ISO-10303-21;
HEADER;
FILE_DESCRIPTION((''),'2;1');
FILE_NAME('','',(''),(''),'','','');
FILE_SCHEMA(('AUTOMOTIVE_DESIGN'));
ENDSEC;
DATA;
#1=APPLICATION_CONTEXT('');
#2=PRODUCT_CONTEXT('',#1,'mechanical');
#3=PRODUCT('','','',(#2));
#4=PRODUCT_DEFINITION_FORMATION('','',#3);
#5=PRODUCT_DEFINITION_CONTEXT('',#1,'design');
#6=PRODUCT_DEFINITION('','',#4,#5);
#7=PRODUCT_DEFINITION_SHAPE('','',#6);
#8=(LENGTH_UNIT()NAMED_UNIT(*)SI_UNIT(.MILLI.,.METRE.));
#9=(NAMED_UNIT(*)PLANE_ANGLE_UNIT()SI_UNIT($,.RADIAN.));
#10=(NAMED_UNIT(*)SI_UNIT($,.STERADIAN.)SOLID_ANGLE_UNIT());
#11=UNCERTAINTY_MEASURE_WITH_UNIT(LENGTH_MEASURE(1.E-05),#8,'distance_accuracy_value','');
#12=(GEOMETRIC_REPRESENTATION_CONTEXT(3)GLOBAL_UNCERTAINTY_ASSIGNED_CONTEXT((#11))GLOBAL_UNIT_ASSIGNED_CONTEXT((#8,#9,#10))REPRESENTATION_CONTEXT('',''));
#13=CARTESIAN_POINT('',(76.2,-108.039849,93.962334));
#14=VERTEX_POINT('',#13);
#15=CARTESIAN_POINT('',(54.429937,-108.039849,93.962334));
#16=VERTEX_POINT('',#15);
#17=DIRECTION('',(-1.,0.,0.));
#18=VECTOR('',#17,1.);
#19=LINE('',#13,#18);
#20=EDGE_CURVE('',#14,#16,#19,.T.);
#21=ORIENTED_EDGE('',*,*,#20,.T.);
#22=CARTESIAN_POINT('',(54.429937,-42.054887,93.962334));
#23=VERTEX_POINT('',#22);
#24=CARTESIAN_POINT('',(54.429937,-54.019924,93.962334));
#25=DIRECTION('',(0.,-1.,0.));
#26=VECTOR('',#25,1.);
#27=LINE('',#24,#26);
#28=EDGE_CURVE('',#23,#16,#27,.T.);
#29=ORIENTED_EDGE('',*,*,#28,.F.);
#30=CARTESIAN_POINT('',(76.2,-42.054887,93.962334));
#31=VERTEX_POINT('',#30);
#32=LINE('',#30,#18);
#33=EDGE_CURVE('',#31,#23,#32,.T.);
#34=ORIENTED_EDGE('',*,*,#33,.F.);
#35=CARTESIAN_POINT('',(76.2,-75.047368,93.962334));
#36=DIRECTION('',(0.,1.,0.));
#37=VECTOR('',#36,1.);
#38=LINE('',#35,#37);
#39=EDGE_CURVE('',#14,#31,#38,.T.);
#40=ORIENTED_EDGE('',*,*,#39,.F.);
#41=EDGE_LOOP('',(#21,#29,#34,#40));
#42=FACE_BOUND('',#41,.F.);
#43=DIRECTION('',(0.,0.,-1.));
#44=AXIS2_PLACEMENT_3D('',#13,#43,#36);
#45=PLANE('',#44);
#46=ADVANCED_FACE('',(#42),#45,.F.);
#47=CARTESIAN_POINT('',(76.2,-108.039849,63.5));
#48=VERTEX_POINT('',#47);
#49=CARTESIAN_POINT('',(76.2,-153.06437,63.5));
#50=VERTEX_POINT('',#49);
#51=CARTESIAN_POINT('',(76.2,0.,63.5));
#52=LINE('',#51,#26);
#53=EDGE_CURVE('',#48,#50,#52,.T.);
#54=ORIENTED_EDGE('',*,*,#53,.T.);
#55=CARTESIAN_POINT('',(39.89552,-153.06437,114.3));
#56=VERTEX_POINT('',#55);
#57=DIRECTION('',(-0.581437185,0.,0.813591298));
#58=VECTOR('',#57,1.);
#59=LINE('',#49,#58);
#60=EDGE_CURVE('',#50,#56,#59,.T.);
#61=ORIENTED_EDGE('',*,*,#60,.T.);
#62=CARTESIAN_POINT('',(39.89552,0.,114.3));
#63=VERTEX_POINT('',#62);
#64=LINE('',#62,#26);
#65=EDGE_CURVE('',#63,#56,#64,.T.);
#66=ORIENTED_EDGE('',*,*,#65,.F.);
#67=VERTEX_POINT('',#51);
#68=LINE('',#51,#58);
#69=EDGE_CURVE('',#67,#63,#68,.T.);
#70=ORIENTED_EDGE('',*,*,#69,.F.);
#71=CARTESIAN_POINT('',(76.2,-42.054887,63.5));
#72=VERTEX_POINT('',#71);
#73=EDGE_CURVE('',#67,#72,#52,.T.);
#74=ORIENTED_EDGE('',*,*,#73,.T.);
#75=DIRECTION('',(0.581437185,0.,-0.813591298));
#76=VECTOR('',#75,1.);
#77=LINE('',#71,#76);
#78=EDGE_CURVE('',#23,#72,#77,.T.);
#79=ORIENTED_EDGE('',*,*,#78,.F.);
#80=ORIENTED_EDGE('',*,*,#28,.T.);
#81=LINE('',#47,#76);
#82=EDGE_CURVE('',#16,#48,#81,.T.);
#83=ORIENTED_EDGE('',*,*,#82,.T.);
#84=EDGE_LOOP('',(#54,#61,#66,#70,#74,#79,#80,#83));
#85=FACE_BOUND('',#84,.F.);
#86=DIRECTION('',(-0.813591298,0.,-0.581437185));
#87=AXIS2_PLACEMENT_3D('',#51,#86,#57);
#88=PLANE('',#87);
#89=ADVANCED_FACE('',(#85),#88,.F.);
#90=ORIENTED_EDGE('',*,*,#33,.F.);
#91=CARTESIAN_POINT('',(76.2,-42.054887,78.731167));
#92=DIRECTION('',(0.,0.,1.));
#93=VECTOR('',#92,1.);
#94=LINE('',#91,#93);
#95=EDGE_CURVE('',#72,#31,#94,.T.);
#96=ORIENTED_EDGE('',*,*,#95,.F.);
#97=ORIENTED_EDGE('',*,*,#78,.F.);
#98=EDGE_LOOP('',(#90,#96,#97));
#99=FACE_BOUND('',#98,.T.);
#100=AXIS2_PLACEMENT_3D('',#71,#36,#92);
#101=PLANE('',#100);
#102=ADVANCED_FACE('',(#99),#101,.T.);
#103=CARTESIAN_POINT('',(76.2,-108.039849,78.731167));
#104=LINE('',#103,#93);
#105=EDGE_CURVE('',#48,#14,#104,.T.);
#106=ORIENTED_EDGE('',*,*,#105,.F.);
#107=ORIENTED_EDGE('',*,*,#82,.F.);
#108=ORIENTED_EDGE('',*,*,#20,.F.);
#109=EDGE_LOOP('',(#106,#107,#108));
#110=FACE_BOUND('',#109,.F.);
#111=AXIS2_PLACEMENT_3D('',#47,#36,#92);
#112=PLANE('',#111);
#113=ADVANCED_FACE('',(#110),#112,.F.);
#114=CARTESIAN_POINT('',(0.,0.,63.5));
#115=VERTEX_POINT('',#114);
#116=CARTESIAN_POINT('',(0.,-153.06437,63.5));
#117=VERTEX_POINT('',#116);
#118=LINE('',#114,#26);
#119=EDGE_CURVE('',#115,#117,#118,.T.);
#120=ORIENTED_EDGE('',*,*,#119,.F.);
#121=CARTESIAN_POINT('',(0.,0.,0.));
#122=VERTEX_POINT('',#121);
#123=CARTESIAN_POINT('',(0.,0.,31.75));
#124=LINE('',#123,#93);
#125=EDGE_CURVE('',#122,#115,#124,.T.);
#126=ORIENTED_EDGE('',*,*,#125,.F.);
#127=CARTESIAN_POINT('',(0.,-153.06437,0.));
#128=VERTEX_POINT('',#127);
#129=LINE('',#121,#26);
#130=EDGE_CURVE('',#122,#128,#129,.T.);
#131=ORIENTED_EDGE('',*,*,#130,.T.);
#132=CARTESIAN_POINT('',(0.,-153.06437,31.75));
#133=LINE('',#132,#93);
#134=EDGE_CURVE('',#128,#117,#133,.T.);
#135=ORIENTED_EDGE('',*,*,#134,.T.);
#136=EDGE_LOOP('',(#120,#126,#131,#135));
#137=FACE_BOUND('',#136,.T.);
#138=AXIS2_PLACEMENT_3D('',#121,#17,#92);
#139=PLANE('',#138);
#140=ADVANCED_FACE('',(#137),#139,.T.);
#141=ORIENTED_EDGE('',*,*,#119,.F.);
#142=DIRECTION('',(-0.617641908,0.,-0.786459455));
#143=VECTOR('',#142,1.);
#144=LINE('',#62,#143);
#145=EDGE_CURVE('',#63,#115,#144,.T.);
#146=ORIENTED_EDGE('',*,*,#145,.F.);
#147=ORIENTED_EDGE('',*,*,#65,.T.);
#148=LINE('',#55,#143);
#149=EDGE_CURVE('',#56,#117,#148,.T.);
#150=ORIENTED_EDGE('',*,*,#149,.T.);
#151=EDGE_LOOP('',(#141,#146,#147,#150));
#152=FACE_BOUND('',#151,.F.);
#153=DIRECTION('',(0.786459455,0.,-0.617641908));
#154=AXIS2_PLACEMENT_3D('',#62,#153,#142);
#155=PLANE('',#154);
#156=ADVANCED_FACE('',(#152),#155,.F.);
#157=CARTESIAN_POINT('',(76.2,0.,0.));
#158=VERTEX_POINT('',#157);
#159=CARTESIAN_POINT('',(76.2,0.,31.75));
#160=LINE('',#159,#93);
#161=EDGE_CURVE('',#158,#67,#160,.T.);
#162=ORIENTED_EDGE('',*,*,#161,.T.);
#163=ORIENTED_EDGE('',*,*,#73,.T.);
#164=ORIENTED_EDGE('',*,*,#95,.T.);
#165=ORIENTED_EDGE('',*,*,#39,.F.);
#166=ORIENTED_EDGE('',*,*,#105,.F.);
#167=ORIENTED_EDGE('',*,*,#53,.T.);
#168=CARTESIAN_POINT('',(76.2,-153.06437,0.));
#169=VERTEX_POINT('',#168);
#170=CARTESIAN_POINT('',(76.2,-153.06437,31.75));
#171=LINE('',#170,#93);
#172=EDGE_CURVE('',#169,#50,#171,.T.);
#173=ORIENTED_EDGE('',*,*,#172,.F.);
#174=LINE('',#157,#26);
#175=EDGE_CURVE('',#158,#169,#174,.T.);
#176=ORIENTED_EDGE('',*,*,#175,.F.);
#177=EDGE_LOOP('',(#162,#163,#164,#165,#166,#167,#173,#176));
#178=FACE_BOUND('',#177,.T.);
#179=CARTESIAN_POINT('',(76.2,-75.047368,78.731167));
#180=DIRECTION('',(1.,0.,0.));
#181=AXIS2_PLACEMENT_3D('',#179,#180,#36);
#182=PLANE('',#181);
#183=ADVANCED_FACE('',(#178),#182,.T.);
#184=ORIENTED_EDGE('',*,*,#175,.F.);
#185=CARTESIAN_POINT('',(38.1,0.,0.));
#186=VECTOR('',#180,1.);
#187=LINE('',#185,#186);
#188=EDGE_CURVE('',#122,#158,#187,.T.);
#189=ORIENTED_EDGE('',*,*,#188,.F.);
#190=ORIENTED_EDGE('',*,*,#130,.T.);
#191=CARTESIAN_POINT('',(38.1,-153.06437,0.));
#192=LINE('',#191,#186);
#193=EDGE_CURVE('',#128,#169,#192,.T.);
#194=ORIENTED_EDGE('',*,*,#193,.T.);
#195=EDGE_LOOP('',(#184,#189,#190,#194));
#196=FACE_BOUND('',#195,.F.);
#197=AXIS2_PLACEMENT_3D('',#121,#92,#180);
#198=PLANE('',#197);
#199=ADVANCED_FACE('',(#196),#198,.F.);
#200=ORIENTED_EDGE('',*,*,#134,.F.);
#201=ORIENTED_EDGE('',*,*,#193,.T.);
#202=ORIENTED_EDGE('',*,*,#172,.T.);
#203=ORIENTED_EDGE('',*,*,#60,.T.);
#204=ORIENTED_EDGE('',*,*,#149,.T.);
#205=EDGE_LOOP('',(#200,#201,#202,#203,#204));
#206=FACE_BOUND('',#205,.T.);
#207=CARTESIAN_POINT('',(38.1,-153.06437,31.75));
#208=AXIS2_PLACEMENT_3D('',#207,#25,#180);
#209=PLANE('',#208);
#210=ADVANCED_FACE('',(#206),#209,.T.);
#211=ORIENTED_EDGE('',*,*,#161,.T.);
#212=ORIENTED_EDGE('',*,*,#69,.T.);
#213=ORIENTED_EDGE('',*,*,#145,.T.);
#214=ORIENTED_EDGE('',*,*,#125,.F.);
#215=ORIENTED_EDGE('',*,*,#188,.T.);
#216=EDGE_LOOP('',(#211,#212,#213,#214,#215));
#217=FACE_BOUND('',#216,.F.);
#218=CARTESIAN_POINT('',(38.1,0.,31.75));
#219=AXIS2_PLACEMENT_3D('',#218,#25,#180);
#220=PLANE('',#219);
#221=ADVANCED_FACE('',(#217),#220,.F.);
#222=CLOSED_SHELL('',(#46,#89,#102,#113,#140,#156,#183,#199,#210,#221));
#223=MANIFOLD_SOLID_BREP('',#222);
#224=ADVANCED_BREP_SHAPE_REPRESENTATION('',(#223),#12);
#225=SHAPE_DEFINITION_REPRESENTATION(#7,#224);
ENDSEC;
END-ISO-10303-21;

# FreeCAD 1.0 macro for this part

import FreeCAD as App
import Part
import Sketcher
Q = App.Units.Quantity

doc = App.newDocument("Part")
params = doc.addObject("Spreadsheet::Sheet", "Params")
for row, (alias, value) in enumerate([
    ("sketch1_width", "3 in"),
    ("sketch1_height", "2.5 in"),
    ("pad1_length", "153.06437 mm"),
    ("pad2_length", "35.61956 mm"),
], start=1):
    params.set(f"A{row}", alias)
    params.set(f"B{row}", "=" + value)
    params.setAlias(f"B{row}", alias)

body = doc.addObject("PartDesign::Body", "Body")

sketch1 = body.newObject("Sketcher::SketchObject", "Sketch")
sketch1.AttachmentSupport = (doc.getObject("XZ_Plane"), [""])
sketch1.MapMode = "FlatFace"
sketch1.addGeometry([
    Part.LineSegment(App.Vector(0, 64, 0), App.Vector(0, 0, 0)),
    Part.LineSegment(App.Vector(0, 0, 0), App.Vector(76, 0, 0)),
    Part.LineSegment(App.Vector(76, 0, 0), App.Vector(76, 64, 0)),
    Part.LineSegment(App.Vector(76, 64, 0), App.Vector(40, 114, 0)),
    Part.LineSegment(App.Vector(40, 114, 0), App.Vector(0, 64, 0)),
], False)
sketch1.addConstraint([
    Sketcher.Constraint("Coincident", 0, 2, 1, 1),
    Sketcher.Constraint("Coincident", 1, 2, 2, 1),
    Sketcher.Constraint("Coincident", 2, 2, 3, 1),
    Sketcher.Constraint("Coincident", 3, 2, 4, 1),
    Sketcher.Constraint("Coincident", 4, 2, 0, 1),
    Sketcher.Constraint("Vertical", 0),
    Sketcher.Constraint("Horizontal", 1),
    Sketcher.Constraint("Vertical", 2),
    Sketcher.Constraint("Coincident", 0, 2, -1, 1),
    Sketcher.Constraint("Horizontal", 2, 2, 4, 2),
    Sketcher.Constraint("DistanceX", 1, 1, 1, 2, Q("3 in")),
    Sketcher.Constraint("DistanceY", 0, 2, 0, 1, Q("2.5 in")),
    Sketcher.Constraint("DistanceY", 2, 2, 3, 2, Q("2 in")),
    Sketcher.Constraint("DistanceX", -1, 1, 3, 2, Q("39.89552 mm")),
])
sketch1.setExpression("Constraints[10]", "Params.sketch1_width")
sketch1.setExpression("Constraints[11]", "Params.sketch1_height")
pad1 = body.newObject("PartDesign::Pad", "Pad")
pad1.Profile = sketch1
pad1.setExpression("Length", "Params.pad1_length")

sketch2 = body.newObject("Sketcher::SketchObject", "Sketch001")
sketch2.AttachmentSupport = (doc.getObject("YZ_Plane"), [""])
sketch2.MapMode = "FlatFace"
sketch2.AttachmentOffset = App.Placement(App.Vector(0, 0, 3 * 25.4), App.Rotation())
sketch2.addGeometry([
    Part.LineSegment(App.Vector(-108, 94, 0), App.Vector(-108, 64, 0)),
    Part.LineSegment(App.Vector(-108, 64, 0), App.Vector(-42, 64, 0)),
    Part.LineSegment(App.Vector(-42, 64, 0), App.Vector(-42, 94, 0)),
    Part.LineSegment(App.Vector(-42, 94, 0), App.Vector(-108, 94, 0)),
], False)
sketch2.addConstraint([
    Sketcher.Constraint("Coincident", 0, 2, 1, 1),
    Sketcher.Constraint("Coincident", 1, 2, 2, 1),
    Sketcher.Constraint("Coincident", 2, 2, 3, 1),
    Sketcher.Constraint("Coincident", 3, 2, 0, 1),
    Sketcher.Constraint("Vertical", 0),
    Sketcher.Constraint("Horizontal", 1),
    Sketcher.Constraint("Vertical", 2),
    Sketcher.Constraint("Horizontal", 3),
    Sketcher.Constraint("DistanceY", -1, 1, 0, 2, Q("2.5 in")),
    Sketcher.Constraint("DistanceX", 1, 1, 1, 2, Q("65.984961 mm")),
    Sketcher.Constraint("DistanceY", 0, 2, 0, 1, Q("30.462334 mm")),
    Sketcher.Constraint("DistanceX", 0, 2, -1, 1, Q("108.039849 mm")),
])
pad2 = body.newObject("PartDesign::Pad", "Pad001")
pad2.Profile = sketch2
pad2.setExpression("Length", "Params.pad2_length")
pad2.Reversed = True

doc.recompute()
